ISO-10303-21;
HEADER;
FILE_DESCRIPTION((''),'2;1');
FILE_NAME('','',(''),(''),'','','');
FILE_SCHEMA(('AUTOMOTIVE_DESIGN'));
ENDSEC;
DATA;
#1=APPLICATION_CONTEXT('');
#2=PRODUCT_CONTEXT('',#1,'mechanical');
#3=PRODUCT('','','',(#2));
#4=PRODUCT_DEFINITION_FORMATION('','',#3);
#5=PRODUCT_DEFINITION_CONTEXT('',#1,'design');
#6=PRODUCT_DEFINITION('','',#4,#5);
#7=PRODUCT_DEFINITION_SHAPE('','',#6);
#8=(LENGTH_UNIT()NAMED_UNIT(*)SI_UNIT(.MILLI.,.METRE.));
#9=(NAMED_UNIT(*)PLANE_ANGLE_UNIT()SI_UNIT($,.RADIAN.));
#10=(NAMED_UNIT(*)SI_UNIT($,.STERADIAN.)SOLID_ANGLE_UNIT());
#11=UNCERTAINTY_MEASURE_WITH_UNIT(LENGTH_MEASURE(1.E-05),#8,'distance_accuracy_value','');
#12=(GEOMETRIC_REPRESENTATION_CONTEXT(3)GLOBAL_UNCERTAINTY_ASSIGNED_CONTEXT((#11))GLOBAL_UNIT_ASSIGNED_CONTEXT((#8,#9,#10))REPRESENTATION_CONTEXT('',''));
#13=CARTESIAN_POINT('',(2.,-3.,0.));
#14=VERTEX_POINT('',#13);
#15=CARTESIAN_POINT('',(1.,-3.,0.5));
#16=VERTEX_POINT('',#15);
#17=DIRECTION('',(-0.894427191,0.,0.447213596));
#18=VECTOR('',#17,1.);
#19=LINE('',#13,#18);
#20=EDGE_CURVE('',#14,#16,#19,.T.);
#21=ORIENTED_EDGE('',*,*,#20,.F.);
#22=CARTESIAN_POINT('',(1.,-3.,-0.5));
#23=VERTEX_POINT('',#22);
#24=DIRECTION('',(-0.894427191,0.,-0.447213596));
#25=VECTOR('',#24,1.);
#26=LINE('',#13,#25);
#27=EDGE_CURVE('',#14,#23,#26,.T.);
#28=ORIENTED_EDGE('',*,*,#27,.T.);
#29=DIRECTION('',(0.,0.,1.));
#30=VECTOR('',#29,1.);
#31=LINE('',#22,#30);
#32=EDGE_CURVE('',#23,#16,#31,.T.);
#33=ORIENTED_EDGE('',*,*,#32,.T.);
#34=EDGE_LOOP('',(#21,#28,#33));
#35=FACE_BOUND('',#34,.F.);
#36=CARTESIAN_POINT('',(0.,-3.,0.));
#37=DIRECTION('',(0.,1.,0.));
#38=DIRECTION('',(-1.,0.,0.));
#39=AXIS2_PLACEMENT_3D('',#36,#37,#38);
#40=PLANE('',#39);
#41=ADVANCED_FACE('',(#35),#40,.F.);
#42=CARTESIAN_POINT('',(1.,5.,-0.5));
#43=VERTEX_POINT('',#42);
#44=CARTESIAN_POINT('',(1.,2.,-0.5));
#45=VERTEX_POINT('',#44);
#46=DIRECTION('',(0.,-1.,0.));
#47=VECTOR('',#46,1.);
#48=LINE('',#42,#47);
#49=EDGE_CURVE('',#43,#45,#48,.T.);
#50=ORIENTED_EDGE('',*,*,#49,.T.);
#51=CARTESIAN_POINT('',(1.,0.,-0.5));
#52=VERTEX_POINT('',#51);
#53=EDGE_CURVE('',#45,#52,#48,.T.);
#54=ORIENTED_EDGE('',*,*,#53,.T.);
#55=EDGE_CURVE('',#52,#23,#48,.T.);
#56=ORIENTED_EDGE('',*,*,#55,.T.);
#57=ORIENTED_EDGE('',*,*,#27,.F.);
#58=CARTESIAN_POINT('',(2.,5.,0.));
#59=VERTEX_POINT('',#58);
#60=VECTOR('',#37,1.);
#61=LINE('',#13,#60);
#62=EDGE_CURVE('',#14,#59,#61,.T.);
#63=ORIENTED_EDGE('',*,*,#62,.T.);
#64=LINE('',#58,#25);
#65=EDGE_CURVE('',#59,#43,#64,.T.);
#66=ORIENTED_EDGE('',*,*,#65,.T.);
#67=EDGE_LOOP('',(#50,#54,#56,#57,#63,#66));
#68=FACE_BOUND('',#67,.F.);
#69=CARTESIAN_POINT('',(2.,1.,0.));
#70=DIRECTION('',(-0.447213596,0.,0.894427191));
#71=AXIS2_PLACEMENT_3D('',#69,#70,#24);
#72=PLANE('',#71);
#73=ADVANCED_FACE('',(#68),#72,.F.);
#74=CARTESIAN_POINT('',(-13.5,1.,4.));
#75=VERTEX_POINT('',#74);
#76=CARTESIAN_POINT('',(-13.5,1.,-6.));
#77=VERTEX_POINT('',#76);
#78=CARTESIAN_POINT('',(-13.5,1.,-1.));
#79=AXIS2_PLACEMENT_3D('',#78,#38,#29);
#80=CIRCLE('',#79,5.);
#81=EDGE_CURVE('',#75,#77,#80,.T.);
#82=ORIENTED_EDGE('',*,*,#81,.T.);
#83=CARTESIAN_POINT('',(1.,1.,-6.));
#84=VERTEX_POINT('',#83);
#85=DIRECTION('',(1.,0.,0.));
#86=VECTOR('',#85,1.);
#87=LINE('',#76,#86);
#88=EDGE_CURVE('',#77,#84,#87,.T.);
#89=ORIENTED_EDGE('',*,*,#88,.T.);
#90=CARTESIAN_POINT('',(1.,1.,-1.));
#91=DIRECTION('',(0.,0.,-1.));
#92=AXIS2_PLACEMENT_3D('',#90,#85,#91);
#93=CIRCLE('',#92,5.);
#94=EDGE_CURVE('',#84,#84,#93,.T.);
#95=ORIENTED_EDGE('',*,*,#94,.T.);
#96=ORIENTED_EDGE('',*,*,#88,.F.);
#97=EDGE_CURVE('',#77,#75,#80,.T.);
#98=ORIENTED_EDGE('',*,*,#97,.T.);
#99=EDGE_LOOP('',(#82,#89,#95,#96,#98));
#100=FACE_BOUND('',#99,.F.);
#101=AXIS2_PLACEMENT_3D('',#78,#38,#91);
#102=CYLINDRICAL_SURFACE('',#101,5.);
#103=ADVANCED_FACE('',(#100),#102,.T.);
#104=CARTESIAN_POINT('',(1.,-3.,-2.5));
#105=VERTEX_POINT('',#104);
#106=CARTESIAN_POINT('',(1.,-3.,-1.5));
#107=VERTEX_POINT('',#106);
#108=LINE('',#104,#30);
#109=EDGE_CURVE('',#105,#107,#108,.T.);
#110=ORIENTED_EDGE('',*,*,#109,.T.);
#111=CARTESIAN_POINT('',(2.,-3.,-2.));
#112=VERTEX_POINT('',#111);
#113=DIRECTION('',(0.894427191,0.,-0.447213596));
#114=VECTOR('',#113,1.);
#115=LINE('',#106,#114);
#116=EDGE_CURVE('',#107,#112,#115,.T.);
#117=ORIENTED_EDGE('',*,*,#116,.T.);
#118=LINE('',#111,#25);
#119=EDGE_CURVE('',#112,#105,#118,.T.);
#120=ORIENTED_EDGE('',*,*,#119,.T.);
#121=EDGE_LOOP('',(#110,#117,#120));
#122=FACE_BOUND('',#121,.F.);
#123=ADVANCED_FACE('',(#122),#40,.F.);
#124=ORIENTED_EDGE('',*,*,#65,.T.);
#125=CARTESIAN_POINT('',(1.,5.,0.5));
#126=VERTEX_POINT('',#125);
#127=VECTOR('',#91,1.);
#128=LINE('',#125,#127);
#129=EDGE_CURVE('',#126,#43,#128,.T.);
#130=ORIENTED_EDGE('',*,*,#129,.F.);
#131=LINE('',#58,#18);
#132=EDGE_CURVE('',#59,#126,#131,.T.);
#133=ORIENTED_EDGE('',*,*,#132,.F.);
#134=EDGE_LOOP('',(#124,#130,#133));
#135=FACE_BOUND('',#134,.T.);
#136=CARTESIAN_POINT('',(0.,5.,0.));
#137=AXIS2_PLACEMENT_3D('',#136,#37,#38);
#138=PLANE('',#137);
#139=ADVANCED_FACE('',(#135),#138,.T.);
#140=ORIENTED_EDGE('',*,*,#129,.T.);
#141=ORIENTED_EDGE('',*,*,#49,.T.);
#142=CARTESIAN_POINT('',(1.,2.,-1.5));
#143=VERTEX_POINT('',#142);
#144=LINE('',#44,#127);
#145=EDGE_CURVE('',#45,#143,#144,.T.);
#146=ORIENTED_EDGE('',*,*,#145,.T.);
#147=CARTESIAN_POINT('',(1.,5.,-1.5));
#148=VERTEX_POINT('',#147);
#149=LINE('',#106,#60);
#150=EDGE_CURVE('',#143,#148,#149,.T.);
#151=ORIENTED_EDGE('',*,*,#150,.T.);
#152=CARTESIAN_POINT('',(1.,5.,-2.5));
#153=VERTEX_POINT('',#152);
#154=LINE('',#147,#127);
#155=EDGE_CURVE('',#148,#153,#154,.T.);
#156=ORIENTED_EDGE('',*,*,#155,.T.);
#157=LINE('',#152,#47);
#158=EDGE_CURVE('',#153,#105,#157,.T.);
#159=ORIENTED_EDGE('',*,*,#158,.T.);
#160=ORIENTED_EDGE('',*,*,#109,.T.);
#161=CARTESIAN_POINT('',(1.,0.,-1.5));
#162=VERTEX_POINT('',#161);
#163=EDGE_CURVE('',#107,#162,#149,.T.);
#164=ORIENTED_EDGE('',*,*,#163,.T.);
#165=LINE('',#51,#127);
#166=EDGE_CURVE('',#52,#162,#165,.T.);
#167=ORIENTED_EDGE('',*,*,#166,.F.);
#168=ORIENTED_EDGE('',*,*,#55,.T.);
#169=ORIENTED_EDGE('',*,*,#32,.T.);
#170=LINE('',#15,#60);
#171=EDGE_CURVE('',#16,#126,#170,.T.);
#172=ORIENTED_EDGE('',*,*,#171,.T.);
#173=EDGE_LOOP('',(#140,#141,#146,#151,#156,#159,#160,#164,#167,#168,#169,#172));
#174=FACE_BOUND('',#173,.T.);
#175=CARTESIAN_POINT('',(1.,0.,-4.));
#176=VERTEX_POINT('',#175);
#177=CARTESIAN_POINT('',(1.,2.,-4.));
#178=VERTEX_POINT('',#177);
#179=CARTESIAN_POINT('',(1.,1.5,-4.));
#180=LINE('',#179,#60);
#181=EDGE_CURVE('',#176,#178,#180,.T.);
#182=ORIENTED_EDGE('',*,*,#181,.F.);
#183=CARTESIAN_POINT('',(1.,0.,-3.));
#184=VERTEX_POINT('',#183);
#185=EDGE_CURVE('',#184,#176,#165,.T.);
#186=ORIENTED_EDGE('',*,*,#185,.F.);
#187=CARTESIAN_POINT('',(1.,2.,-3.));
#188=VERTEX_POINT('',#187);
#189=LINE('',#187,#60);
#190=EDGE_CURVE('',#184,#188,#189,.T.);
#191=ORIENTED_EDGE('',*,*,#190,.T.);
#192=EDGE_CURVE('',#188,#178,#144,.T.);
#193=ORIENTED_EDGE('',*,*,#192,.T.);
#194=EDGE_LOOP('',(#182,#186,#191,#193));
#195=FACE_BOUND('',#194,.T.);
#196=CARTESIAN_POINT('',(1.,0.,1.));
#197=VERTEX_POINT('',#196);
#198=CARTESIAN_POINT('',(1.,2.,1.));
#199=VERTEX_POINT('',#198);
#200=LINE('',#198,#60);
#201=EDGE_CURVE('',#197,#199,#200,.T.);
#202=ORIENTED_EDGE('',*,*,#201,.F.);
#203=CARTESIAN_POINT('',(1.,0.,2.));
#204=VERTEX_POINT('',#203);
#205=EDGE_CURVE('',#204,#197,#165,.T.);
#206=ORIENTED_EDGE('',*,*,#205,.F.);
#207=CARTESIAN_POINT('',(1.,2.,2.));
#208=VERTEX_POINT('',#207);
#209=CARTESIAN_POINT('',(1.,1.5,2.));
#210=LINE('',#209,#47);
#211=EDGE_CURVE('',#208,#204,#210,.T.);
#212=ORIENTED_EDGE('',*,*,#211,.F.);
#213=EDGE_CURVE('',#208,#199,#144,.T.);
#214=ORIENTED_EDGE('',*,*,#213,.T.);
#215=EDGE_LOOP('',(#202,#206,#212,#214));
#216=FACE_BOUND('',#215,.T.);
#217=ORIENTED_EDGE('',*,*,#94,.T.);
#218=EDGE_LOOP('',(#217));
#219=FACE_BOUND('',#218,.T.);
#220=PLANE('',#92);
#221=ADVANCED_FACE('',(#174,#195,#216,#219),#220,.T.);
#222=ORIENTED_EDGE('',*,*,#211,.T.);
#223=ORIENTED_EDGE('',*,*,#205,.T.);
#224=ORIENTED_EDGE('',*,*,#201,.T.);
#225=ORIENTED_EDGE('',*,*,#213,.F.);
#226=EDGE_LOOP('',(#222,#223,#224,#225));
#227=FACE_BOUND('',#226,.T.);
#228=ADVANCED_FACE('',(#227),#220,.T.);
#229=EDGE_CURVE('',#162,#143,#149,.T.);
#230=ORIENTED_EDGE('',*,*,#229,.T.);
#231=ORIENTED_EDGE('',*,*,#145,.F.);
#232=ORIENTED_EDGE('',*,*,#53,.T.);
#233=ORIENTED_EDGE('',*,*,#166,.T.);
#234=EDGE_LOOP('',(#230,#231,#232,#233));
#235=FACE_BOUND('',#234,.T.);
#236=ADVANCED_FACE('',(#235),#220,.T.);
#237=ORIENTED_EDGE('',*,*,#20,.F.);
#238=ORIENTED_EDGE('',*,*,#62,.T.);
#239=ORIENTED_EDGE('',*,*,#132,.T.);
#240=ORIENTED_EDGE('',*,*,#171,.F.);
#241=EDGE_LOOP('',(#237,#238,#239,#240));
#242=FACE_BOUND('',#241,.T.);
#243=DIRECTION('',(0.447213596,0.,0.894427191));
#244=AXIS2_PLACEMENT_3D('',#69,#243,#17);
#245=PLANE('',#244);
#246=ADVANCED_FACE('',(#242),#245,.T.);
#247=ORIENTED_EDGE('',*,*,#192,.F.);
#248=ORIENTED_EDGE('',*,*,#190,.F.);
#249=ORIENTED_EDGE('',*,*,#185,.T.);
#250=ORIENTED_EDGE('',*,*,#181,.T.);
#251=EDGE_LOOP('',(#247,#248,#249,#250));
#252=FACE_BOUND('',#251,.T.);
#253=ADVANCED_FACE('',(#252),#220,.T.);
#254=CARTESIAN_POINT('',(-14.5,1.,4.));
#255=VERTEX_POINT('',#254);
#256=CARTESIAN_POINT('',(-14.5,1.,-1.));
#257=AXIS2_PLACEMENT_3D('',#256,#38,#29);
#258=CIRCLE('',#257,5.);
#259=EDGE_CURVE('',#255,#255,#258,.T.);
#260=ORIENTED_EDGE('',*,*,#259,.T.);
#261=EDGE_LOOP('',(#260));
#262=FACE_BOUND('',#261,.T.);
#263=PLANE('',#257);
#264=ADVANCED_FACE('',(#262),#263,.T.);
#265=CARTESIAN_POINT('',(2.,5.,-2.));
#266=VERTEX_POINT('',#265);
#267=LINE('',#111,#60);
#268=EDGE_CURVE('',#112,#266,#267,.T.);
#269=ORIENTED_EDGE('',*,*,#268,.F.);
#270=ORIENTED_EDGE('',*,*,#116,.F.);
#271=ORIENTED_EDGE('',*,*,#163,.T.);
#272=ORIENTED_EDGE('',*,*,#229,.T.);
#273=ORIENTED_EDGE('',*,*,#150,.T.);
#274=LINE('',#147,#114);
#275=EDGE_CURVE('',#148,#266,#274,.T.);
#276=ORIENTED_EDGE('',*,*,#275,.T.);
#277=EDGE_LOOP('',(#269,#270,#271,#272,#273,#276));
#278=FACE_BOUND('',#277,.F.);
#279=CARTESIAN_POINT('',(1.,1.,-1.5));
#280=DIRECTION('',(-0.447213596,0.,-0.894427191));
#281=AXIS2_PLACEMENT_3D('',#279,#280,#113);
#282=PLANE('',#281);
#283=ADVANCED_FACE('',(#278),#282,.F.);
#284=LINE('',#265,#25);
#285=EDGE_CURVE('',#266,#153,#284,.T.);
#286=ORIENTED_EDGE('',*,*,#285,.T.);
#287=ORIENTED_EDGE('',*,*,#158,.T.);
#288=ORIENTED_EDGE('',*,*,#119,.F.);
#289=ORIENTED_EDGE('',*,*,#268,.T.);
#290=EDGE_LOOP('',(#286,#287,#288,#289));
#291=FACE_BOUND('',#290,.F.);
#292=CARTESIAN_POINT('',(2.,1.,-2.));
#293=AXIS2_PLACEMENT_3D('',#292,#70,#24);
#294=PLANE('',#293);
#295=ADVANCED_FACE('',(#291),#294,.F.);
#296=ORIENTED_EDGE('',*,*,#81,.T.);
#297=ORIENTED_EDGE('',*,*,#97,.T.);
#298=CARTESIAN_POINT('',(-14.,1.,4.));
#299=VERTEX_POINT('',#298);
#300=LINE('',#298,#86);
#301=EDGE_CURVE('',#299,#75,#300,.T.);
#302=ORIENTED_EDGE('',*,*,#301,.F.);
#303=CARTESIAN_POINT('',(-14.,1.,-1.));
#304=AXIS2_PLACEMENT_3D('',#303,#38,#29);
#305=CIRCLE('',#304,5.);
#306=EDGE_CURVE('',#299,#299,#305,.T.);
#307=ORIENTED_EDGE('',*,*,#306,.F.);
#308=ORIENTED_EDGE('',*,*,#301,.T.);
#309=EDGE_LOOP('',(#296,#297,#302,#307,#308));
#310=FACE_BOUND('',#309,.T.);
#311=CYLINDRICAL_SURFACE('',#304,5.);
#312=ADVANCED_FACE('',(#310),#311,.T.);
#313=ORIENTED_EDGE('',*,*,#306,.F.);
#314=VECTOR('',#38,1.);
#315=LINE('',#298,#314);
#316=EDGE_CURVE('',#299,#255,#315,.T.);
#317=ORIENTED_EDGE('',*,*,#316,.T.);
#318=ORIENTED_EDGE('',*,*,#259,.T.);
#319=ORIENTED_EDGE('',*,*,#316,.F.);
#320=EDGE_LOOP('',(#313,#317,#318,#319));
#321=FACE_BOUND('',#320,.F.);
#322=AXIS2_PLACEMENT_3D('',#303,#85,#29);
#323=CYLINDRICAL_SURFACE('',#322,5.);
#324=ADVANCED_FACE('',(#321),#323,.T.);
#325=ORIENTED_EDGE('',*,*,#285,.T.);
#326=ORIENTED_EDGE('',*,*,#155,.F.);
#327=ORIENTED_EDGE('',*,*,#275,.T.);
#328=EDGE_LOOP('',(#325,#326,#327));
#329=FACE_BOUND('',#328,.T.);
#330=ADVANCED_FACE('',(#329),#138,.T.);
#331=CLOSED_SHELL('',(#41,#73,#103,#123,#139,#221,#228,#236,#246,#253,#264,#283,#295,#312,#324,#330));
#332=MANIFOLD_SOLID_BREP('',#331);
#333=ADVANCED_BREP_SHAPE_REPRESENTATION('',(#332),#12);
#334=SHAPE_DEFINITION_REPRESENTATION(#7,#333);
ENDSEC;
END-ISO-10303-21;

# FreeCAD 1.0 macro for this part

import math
import FreeCAD as App
import Part
import Sketcher

V = App.Vector
Q = App.Units.Quantity

doc = App.newDocument("Part")
body = doc.addObject("PartDesign::Body", "Body")

sketch1 = doc.addObject("Sketcher::SketchObject", "Sketch")
body.addObject(sketch1)
sketch1.AttachmentSupport = (doc.XZ_Plane, [""])
sketch1.MapMode = "FlatFace"
sketch1.addGeometry([
    Part.LineSegment(V(-20, 0, 0), V(0, 0, 0)),
    Part.LineSegment(V(0, 0, 0), V(0, -2, 0)),
    Part.LineSegment(V(0, -2, 0), V(-20, -2, 0)),
    Part.LineSegment(V(-20, -2, 0), V(-20, 0, 0)),
], False)
sketch1.addConstraint([
    Sketcher.Constraint("Coincident", 0, 2, 1, 1),
    Sketcher.Constraint("Coincident", 1, 2, 2, 1),
    Sketcher.Constraint("Coincident", 2, 2, 3, 1),
    Sketcher.Constraint("Coincident", 3, 2, 0, 1),
    Sketcher.Constraint("Horizontal", 0),
    Sketcher.Constraint("Vertical", 1),
    Sketcher.Constraint("Horizontal", 2),
    Sketcher.Constraint("Vertical", 3),
    Sketcher.Constraint("Coincident", 0, 2, -1, 1),
    Sketcher.Constraint("DistanceX", 0, 1, 0, 2, Q("20 mm")),
    Sketcher.Constraint("DistanceY", 1, 2, 1, 1, Q("2 mm")),
])
pad1 = doc.addObject("PartDesign::Pad", "Pad")
body.addObject(pad1)
pad1.Profile = sketch1
pad1.Length = 2
pad1.Reversed = True

sketch2 = doc.addObject("Sketcher::SketchObject", "Sketch001")
body.addObject(sketch2)
sketch2.AttachmentSupport = (doc.XZ_Plane, [""])
sketch2.MapMode = "FlatFace"
sketch2.AttachmentOffset = App.Placement(V(0, 0, -2), App.Rotation())
sketch2.addGeometry([
    Part.LineSegment(V(0, -4, 0), V(0, 2, 0)),
    Part.LineSegment(V(0, 2, 0), V(2, 2, 0)),
    Part.LineSegment(V(2, 2, 0), V(2, -4, 0)),
    Part.LineSegment(V(2, -4, 0), V(0, -4, 0)),
], False)
sketch2.addConstraint([
    Sketcher.Constraint("Coincident", 0, 2, 1, 1),
    Sketcher.Constraint("Coincident", 1, 2, 2, 1),
    Sketcher.Constraint("Coincident", 2, 2, 3, 1),
    Sketcher.Constraint("Coincident", 3, 2, 0, 1),
    Sketcher.Constraint("Vertical", 0),
    Sketcher.Constraint("Horizontal", 1),
    Sketcher.Constraint("Vertical", 2),
    Sketcher.Constraint("Horizontal", 3),
    Sketcher.Constraint("PointOnObject", 0, 2, -2),
    Sketcher.Constraint("DistanceX", 1, 1, 1, 2, Q("2 mm")),
    Sketcher.Constraint("DistanceY", 0, 1, 0, 2, Q("6 mm")),
    Sketcher.Constraint("DistanceY", -1, 1, 0, 2, Q("2 mm")),
])
pad2 = doc.addObject("PartDesign::Pad", "Pad001")
body.addObject(pad2)
pad2.Profile = sketch2
pad2.Length = 2

sketch3 = doc.addObject("Sketcher::SketchObject", "Sketch002")
body.addObject(sketch3)
sketch3.AttachmentSupport = (doc.XZ_Plane, [""])
sketch3.MapMode = "FlatFace"
sketch3.AttachmentOffset = App.Placement(V(0, 0, -2), App.Rotation())
sketch3.addGeometry([
    Part.Circle(V(1, 0.5, 0), V(0, 0, 1), 0.5),
    Part.Circle(V(1, -2.5, 0), V(0, 0, 1), 0.5),
], False)
sketch3.addConstraint([
    Sketcher.Constraint("Equal", 0, 1),
    Sketcher.Constraint("Vertical", 0, 3, 1, 3),
    Sketcher.Constraint("Diameter", 0, Q("1 mm")),
    Sketcher.Constraint("DistanceX", -1, 1, 0, 3, Q("1 mm")),
    Sketcher.Constraint("DistanceY", 1, 3, 0, 3, Q("3 mm")),
    Sketcher.Constraint("DistanceY", -1, 1, 0, 3, Q("0.5 mm")),
])
pocket1 = doc.addObject("PartDesign::Pocket", "Pocket")
body.addObject(pocket1)
pocket1.Profile = sketch3
pocket1.Length = 2
pocket1.Reversed = True

sketch4 = doc.addObject("Sketcher::SketchObject", "Sketch003")
body.addObject(sketch4)
sketch4.AttachmentSupport = (doc.YZ_Plane, [""])
sketch4.MapMode = "FlatFace"
sketch4.addGeometry([
    Part.LineSegment(V(2, -1, 0), V(2, -2, 0)),
    Part.ArcOfCircle(Part.Circle(V(1, -1, 0), V(0, 0, 1), 1.4), math.radians(-135), math.radians(-45)),
    Part.LineSegment(V(0, -2, 0), V(0, -1, 0)),
    Part.ArcOfCircle(Part.Circle(V(1, -1, 0), V(0, 0, 1), 1), math.radians(180), math.radians(360)),
    Part.LineSegment(V(2, 0, 0), V(2, -1, 0)),
    Part.ArcOfCircle(Part.Circle(V(1, -1, 0), V(0, 0, 1), 1), math.radians(0), math.radians(180)),
    Part.LineSegment(V(0, -1, 0), V(0, 0, 0)),
    Part.ArcOfCircle(Part.Circle(V(1, -1, 0), V(0, 0, 1), 1.4), math.radians(45), math.radians(135)),
], False)
sketch4.addConstraint([
    Sketcher.Constraint("Coincident", 0, 2, 1, 2),
    Sketcher.Constraint("Coincident", 1, 1, 2, 1),
    Sketcher.Constraint("Tangent", 2, 2, 3, 1),
    Sketcher.Constraint("Tangent", 3, 2, 0, 1),
    Sketcher.Constraint("Tangent", 4, 2, 5, 1),
    Sketcher.Constraint("Tangent", 5, 2, 6, 1),
    Sketcher.Constraint("Coincident", 6, 2, 7, 2),
    Sketcher.Constraint("Coincident", 7, 1, 4, 1),
    Sketcher.Constraint("Vertical", 0),
    Sketcher.Constraint("Vertical", 2),
    Sketcher.Constraint("Vertical", 4),
    Sketcher.Constraint("Vertical", 6),
    Sketcher.Constraint("Coincident", 6, 2, -1, 1),
    Sketcher.Constraint("Coincident", 3, 3, 1, 3),
    Sketcher.Constraint("Coincident", 5, 3, 1, 3),
    Sketcher.Constraint("Coincident", 7, 3, 1, 3),
    Sketcher.Constraint("Equal", 3, 5),
    Sketcher.Constraint("Equal", 1, 7),
    Sketcher.Constraint("Radius", 3, Q("1 mm")),
    Sketcher.Constraint("DistanceY", 0, 2, 0, 1, Q("1 mm")),
])
pocket2 = doc.addObject("PartDesign::Pocket", "Pocket001")
body.addObject(pocket2)
pocket2.Profile = sketch4
pocket2.Length = 100

sketch5 = doc.addObject("Sketcher::SketchObject", "Sketch004")
body.addObject(sketch5)
sketch5.AttachmentSupport = (doc.YZ_Plane, [""])
sketch5.MapMode = "FlatFace"
sketch5.AttachmentOffset = App.Placement(V(0, 0, -14), App.Rotation())
sketch5.addGeometry(Part.Circle(V(1, -1, 0), V(0, 0, 1), 5), False)
sketch5.addConstraint([
    Sketcher.Constraint("Diameter", 0, Q("10 mm")),
    Sketcher.Constraint("DistanceX", -1, 1, 0, 3, Q("1 mm")),
    Sketcher.Constraint("DistanceY", 0, 3, -1, 1, Q("1 mm")),
])
pad3 = doc.addObject("PartDesign::Pad", "Pad002")
body.addObject(pad3)
pad3.Profile = sketch5
pad3.Length = 1
pad3.Midplane = True

sketch6 = doc.addObject("Sketcher::SketchObject", "Sketch005")
body.addObject(sketch6)
sketch6.AttachmentSupport = (doc.YZ_Plane, [""])
sketch6.MapMode = "FlatFace"
sketch6.AttachmentOffset = App.Placement(V(0, 0, -20), App.Rotation())
sketch6.addGeometry(Part.Circle(V(1, -1, 0), V(0, 0, 1), 5), False)
sketch6.addConstraint([
    Sketcher.Constraint("Diameter", 0, Q("10 mm")),
    Sketcher.Constraint("DistanceX", -1, 1, 0, 3, Q("1 mm")),
    Sketcher.Constraint("DistanceY", 0, 3, -1, 1, Q("1 mm")),
])
pocket3 = doc.addObject("PartDesign::Pocket", "Pocket002")
body.addObject(pocket3)
pocket3.Profile = sketch6
pocket3.Length = 5.5
pocket3.Reversed = True

sketch7 = doc.addObject("Sketcher::SketchObject", "Sketch006")
body.addObject(sketch7)
sketch7.AttachmentSupport = (doc.YZ_Plane, [""])
sketch7.MapMode = "FlatFace"
sketch7.AttachmentOffset = App.Placement(V(0, 0, -13.5), App.Rotation())
sketch7.addGeometry(Part.Circle(V(1, -1, 0), V(0, 0, 1), 5), False)
sketch7.addConstraint([
    Sketcher.Constraint("Diameter", 0, Q("10 mm")),
    Sketcher.Constraint("DistanceX", -1, 1, 0, 3, Q("1 mm")),
    Sketcher.Constraint("DistanceY", 0, 3, -1, 1, Q("1 mm")),
])
pad4 = doc.addObject("PartDesign::Pad", "Pad003")
body.addObject(pad4)
pad4.Profile = sketch7
pad4.Length = 14.5

sketch8 = doc.addObject("Sketcher::SketchObject", "Sketch007")
body.addObject(sketch8)
sketch8.AttachmentSupport = (doc.YZ_Plane, [""])
sketch8.MapMode = "FlatFace"
sketch8.AttachmentOffset = App.Placement(V(0, 0, 1), App.Rotation())
sketch8.addGeometry(Part.Circle(V(1, -1, 0), V(0, 0, 1), 5), False)
sketch8.addConstraint([
    Sketcher.Constraint("Diameter", 0, Q("10 mm")),
    Sketcher.Constraint("DistanceX", -1, 1, 0, 3, Q("1 mm")),
    Sketcher.Constraint("DistanceY", 0, 3, -1, 1, Q("1 mm")),
])
pocket4 = doc.addObject("PartDesign::Pocket", "Pocket003")
body.addObject(pocket4)
pocket4.Profile = sketch8
pocket4.Length = 13.5
pocket4.Reversed = True

sketch9 = doc.addObject("Sketcher::SketchObject", "Sketch008")
body.addObject(sketch9)
sketch9.AttachmentSupport = (doc.XZ_Plane, [""])
sketch9.MapMode = "FlatFace"
sketch9.AttachmentOffset = App.Placement(V(0, 0, -1), App.Rotation())
sketch9.addGeometry([
    Part.LineSegment(V(1, -1.5, 0), V(2, -2, 0)),
    Part.LineSegment(V(2, -2, 0), V(1, -2.5, 0)),
    Part.LineSegment(V(1, -2.5, 0), V(1, -1.5, 0)),
    Part.LineSegment(V(1, 0.5, 0), V(2, 0, 0)),
    Part.LineSegment(V(2, 0, 0), V(1, -0.5, 0)),
    Part.LineSegment(V(1, -0.5, 0), V(1, 0.5, 0)),
], False)
sketch9.addConstraint([
    Sketcher.Constraint("Coincident", 0, 2, 1, 1),
    Sketcher.Constraint("Coincident", 1, 2, 2, 1),
    Sketcher.Constraint("Coincident", 2, 2, 0, 1),
    Sketcher.Constraint("Coincident", 3, 2, 4, 1),
    Sketcher.Constraint("Coincident", 4, 2, 5, 1),
    Sketcher.Constraint("Coincident", 5, 2, 3, 1),
    Sketcher.Constraint("Vertical", 2),
    Sketcher.Constraint("Vertical", 5),
    Sketcher.Constraint("PointOnObject", 3, 2, -1),
    Sketcher.Constraint("Parallel", 0, 3),
    Sketcher.Constraint("Parallel", 1, 4),
    Sketcher.Constraint("Vertical", 0, 2, 3, 2),
    Sketcher.Constraint("Vertical", 2, 2, 4, 2),
    Sketcher.Constraint("Equal", 0, 1),
    Sketcher.Constraint("DistanceY", 2, 1, 2, 2, Q("1 mm")),
    Sketcher.Constraint("DistanceX", -1, 1, 1, 2, Q("1 mm")),
    Sketcher.Constraint("DistanceX", 1, 2, 0, 2, Q("1 mm")),
    Sketcher.Constraint("DistanceY", 2, 2, 4, 2, Q("1 mm")),
])
pad5 = doc.addObject("PartDesign::Pad", "Pad004")
body.addObject(pad5)
pad5.Profile = sketch9
pad5.Length = 8
pad5.Midplane = True

doc.recompute()
